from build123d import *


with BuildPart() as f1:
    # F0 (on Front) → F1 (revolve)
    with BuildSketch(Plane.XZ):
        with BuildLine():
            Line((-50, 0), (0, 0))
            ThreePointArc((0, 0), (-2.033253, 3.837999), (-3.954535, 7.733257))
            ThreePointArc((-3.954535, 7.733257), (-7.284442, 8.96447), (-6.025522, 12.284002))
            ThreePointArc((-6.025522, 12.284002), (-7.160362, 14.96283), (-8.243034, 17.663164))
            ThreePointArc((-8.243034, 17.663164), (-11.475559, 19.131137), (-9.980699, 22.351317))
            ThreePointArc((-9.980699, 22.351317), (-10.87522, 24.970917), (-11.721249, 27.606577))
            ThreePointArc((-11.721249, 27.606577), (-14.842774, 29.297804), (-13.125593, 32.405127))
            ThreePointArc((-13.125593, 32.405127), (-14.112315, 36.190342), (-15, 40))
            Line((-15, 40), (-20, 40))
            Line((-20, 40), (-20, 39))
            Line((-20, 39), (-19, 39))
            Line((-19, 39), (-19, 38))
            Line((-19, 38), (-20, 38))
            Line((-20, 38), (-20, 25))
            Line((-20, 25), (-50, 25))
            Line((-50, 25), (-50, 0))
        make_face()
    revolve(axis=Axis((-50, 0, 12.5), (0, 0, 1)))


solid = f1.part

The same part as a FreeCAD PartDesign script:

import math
import FreeCAD as App
import Part
import Sketcher

doc = App.newDocument("Part")
body = doc.addObject("PartDesign::Body", "Body")

# Sketch on XZ plane
sketch1 = doc.addObject("Sketcher::SketchObject", "Sketch")
body.addObject(sketch1)
sketch1.AttachmentSupport = (doc.XZ_Plane, [""])
sketch1.MapMode = "FlatFace"
sketch1.addGeometry([
    Part.LineSegment(App.Vector(-50, 0, 0), App.Vector(0, 0, 0)),  # 0
    Part.ArcOfCircle(Part.Circle(App.Vector(131.5, 72.1, 0), App.Vector(0, 0, 1), 150), math.radians(-154.58), math.radians(-151.26)),  # 1
    Part.ArcOfCircle(Part.Circle(App.Vector(-5, 10, 0), App.Vector(0, 0, 1), 2.5), math.radians(114), math.radians(295)),  # 2
    Part.ArcOfCircle(Part.Circle(App.Vector(131.5, 72.1, 0), App.Vector(0, 0, 1), 150), math.radians(-158.71), math.radians(-156.49)),  # 3
    Part.ArcOfCircle(Part.Circle(App.Vector(-9.1, 20, 0), App.Vector(0, 0, 1), 2.5), math.radians(110), math.radians(291)),  # 4
    Part.ArcOfCircle(Part.Circle(App.Vector(131.5, 72.1, 0), App.Vector(0, 0, 1), 150), math.radians(-162.73), math.radians(-160.62)),  # 5
    Part.ArcOfCircle(Part.Circle(App.Vector(-12.4, 30, 0), App.Vector(0, 0, 1), 2.5), math.radians(106), math.radians(287)),  # 6
    Part.ArcOfCircle(Part.Circle(App.Vector(131.5, 72.1, 0), App.Vector(0, 0, 1), 150), math.radians(-167.63), math.radians(-164.64)),  # 7
    Part.LineSegment(App.Vector(-15, 40, 0), App.Vector(-20, 40, 0)),  # 8
    Part.LineSegment(App.Vector(-20, 40, 0), App.Vector(-20, 39, 0)),  # 9
    Part.LineSegment(App.Vector(-20, 39, 0), App.Vector(-19, 39, 0)),  # 10
    Part.LineSegment(App.Vector(-19, 39, 0), App.Vector(-19, 38, 0)),  # 11
    Part.LineSegment(App.Vector(-19, 38, 0), App.Vector(-20, 38, 0)),  # 12
    Part.LineSegment(App.Vector(-20, 38, 0), App.Vector(-20, 25, 0)),  # 13
    Part.LineSegment(App.Vector(-20, 25, 0), App.Vector(-50, 25, 0)),  # 14
    Part.LineSegment(App.Vector(-50, 25, 0), App.Vector(-50, 0, 0)),  # 15
], False)
sketch1.addGeometry(Part.LineSegment(App.Vector(-50, 0, 0), App.Vector(-50, 72.1, 0)), True)  # axis
sketch1.addConstraint([
    Sketcher.Constraint("Coincident", 0, 2, 1, 2),
    Sketcher.Constraint("Coincident", 1, 1, 2, 2),
    Sketcher.Constraint("Coincident", 2, 1, 3, 2),
    Sketcher.Constraint("Coincident", 3, 1, 4, 2),
    Sketcher.Constraint("Coincident", 4, 1, 5, 2),
    Sketcher.Constraint("Coincident", 5, 1, 6, 2),
    Sketcher.Constraint("Coincident", 6, 1, 7, 2),
    Sketcher.Constraint("Coincident", 7, 1, 8, 1),
    Sketcher.Constraint("Coincident", 8, 2, 9, 1),
    Sketcher.Constraint("Coincident", 9, 2, 10, 1),
    Sketcher.Constraint("Coincident", 10, 2, 11, 1),
    Sketcher.Constraint("Coincident", 11, 2, 12, 1),
    Sketcher.Constraint("Coincident", 12, 2, 13, 1),
    Sketcher.Constraint("Coincident", 13, 2, 14, 1),
    Sketcher.Constraint("Coincident", 14, 2, 15, 1),
    Sketcher.Constraint("Coincident", 15, 2, 0, 1),
    Sketcher.Constraint("Horizontal", 0),
    Sketcher.Constraint("Horizontal", 8),
    Sketcher.Constraint("Vertical", 9),
    Sketcher.Constraint("Horizontal", 10),
    Sketcher.Constraint("Vertical", 11),
    Sketcher.Constraint("Horizontal", 12),
    Sketcher.Constraint("Vertical", 13),
    Sketcher.Constraint("Horizontal", 14),
    Sketcher.Constraint("Vertical", 15),
    Sketcher.Constraint("Vertical", 16),
    Sketcher.Constraint("Coincident", 0, 2, -1, 1),
    Sketcher.Constraint("Coincident", 16, 1, 15, 2),
    Sketcher.Constraint("Equal", 2, 4),
    Sketcher.Constraint("Equal", 4, 6),
    Sketcher.Constraint("Horizontal", 5, 3, 16, 2),
    Sketcher.Constraint("Vertical", 9, 2, 12, 2),
    Sketcher.Constraint("Equal", 12, 9),
    Sketcher.Constraint("Equal", 9, 11),
    Sketcher.Constraint("Radius", 2, 2.5),
    Sketcher.Constraint("DistanceX", 0, 1, 0, 2, 50.0),
    Sketcher.Constraint("DistanceX", 8, 2, 8, 1, 5.0),
    Sketcher.Constraint("DistanceX", 10, 1, 10, 2, 1.0),
    Sketcher.Constraint("DistanceX", 14, 2, 14, 1, 30.0),
    Sketcher.Constraint("DistanceY", 13, 2, 13, 1, 13.0),
    Sketcher.Constraint("DistanceY", 15, 2, 15, 1, 25.0),
    Sketcher.Constraint("DistanceY", -1, 1, 2, 3, 10.0),
    Sketcher.Constraint("DistanceY", -1, 1, 4, 3, 20.0),
    Sketcher.Constraint("DistanceY", -1, 1, 6, 3, 30.0),
    Sketcher.Constraint("Radius", 1, 150.000369),
    Sketcher.Constraint("Radius", 5, 150.00256),
    Sketcher.Constraint("DistanceY", -1, 1, 2, 1, 12.284002),
    Sketcher.Constraint("Radius", 3, 149.998746),
    Sketcher.Constraint("Radius", 7, 150.001583),
    Sketcher.Constraint("DistanceX", 4, 3, -1, 1, 9.131401),
    Sketcher.Constraint("DistanceX", 4, 1, -1, 1, 9.980699),
    Sketcher.Constraint("DistanceX", 2, 3, 1, 3, 136.527399),
    Sketcher.Constraint("DistanceX", 2, 3, 5, 3, 136.529501),
    Sketcher.Constraint("DistanceY", 1, 3, 7, 3, 0.000201),
    Sketcher.Constraint("DistanceX", 3, 3, 7, 3, 0.002702),
    Sketcher.Constraint("DistanceY", 16, 1, 16, 2, 72.132596),
    Sketcher.Constraint("DistanceX", 6, 3, 1, 1, 8.488881),
])
revolution = doc.addObject("PartDesign::Revolution", "Revolution")
body.addObject(revolution)
revolution.Profile = sketch1
revolution.ReferenceAxis = (sketch1, ["Axis0"])
revolution.Angle = 360

doc.recompute()
